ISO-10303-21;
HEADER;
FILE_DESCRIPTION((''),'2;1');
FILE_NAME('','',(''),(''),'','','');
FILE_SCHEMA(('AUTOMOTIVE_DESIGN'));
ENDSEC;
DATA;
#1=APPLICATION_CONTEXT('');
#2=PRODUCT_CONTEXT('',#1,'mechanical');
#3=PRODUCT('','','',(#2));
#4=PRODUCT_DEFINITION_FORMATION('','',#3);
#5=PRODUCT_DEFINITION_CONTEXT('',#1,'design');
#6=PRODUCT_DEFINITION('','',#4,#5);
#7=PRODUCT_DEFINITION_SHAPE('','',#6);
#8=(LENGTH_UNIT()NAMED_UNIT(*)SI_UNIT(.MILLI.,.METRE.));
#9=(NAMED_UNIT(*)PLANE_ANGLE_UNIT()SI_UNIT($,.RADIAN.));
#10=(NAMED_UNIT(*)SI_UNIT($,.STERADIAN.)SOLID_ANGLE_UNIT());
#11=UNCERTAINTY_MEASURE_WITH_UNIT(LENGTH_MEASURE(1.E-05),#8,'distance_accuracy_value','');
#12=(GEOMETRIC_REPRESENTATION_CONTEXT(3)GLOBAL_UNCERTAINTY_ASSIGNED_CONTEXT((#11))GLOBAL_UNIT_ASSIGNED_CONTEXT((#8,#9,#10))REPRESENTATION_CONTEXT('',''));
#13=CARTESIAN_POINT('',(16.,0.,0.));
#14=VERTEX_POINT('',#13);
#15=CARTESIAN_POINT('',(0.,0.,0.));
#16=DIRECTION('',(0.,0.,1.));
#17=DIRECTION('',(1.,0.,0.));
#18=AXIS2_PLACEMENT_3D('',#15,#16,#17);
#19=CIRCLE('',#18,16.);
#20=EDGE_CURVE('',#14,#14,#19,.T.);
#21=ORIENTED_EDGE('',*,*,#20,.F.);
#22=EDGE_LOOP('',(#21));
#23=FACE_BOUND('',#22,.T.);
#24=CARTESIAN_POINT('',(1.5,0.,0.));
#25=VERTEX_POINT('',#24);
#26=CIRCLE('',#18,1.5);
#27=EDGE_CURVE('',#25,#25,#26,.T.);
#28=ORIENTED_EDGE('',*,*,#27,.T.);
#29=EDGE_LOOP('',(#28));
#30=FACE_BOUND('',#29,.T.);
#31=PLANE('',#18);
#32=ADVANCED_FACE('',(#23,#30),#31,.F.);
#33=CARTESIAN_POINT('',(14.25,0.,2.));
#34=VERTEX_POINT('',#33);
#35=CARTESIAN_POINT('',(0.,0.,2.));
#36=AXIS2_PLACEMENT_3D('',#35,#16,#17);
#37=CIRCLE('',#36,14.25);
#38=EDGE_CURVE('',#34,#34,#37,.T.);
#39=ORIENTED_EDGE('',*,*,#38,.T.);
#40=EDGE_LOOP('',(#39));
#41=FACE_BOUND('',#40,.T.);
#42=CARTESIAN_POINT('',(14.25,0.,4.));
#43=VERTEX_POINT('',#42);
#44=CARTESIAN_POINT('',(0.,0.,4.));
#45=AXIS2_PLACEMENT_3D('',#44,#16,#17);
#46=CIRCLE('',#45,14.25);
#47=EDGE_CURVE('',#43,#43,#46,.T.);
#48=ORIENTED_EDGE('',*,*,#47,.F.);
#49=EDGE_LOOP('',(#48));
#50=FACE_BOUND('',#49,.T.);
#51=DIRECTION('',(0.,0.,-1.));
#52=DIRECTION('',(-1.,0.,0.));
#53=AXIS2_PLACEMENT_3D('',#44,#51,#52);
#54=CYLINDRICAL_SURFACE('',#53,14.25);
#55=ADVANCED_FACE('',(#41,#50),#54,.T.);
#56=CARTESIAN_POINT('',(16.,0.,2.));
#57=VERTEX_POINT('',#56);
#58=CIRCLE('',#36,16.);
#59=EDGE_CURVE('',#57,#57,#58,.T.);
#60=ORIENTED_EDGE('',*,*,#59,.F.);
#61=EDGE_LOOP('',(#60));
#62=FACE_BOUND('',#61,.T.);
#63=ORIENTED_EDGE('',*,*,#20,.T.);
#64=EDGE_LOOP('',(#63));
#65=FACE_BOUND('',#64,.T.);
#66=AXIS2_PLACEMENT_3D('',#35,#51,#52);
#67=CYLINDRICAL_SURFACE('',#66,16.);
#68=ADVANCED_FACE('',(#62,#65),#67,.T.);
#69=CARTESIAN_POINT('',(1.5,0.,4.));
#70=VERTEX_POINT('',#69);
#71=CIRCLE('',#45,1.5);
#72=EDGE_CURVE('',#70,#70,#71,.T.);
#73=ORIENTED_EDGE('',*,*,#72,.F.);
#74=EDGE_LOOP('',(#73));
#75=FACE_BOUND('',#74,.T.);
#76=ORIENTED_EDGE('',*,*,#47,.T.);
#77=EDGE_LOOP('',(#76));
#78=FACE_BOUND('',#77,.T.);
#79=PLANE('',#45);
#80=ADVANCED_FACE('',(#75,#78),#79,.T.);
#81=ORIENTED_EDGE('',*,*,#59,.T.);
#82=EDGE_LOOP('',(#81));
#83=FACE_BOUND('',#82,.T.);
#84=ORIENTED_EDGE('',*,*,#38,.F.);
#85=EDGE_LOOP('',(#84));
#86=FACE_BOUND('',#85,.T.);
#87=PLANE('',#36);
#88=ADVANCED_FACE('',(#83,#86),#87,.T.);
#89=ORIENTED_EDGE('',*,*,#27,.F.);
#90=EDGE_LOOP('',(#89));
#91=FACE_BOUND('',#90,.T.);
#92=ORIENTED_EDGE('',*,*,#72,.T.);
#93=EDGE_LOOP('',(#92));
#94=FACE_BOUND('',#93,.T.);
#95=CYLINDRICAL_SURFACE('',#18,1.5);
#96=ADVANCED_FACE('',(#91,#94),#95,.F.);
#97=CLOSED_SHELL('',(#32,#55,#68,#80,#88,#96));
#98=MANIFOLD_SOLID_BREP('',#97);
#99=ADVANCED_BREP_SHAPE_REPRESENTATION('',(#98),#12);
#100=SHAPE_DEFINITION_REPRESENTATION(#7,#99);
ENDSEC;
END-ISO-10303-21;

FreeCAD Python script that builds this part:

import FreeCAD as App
import Part
import Sketcher

doc = App.newDocument("Part")
params = doc.addObject("Spreadsheet::Sheet", "Params")
for row, (alias, value) in enumerate([
    ("sketch1_diameter", "32 mm"),
    ("pad1_length", "2 mm"),
    ("sketch2_diameter", "28.5 mm"),
    ("pad2_length", "2 mm"),
    ("sketch3_diameter", "3 mm"),
], start=1):
    params.set(f"A{row}", alias)
    params.set(f"B{row}", "=" + value)
    params.setAlias(f"B{row}", alias)

body = doc.addObject("PartDesign::Body", "Body")

sketch1 = doc.addObject("Sketcher::SketchObject", "Sketch")
body.addObject(sketch1)
sketch1.AttachmentSupport = (doc.XY_Plane, [""])
sketch1.MapMode = "FlatFace"
sketch1.addGeometry(Part.Circle(App.Vector(0, 0, 0), App.Vector(0, 0, 1), 16), False)
sketch1.addConstraint(Sketcher.Constraint("Coincident", 0, 3, -1, 1))
sketch1.addConstraint(Sketcher.Constraint("Diameter", 0, 32.0))
sketch1.setExpression("Constraints[1]", "Params.sketch1_diameter")
pad1 = doc.addObject("PartDesign::Pad", "Pad")
body.addObject(pad1)
pad1.Profile = sketch1
pad1.setExpression("Length", "Params.pad1_length")

sketch2 = doc.addObject("Sketcher::SketchObject", "Sketch001")
body.addObject(sketch2)
sketch2.AttachmentSupport = (doc.XY_Plane, [""])
sketch2.MapMode = "FlatFace"
sketch2.AttachmentOffset = App.Placement(App.Vector(0, 0, 2), App.Rotation())
sketch2.addGeometry(Part.Circle(App.Vector(0, 0, 0), App.Vector(0, 0, 1), 14), False)
sketch2.addConstraint(Sketcher.Constraint("Coincident", 0, 3, -1, 1))
sketch2.addConstraint(Sketcher.Constraint("Diameter", 0, 28.5))
sketch2.setExpression("Constraints[1]", "Params.sketch2_diameter")
pad2 = doc.addObject("PartDesign::Pad", "Pad001")
body.addObject(pad2)
pad2.Profile = sketch2
pad2.setExpression("Length", "Params.pad2_length")

sketch3 = doc.addObject("Sketcher::SketchObject", "Sketch002")
body.addObject(sketch3)
sketch3.AttachmentSupport = (doc.XY_Plane, [""])
sketch3.MapMode = "FlatFace"
sketch3.AttachmentOffset = App.Placement(App.Vector(0, 0, 4), App.Rotation())
sketch3.addGeometry(Part.Circle(App.Vector(0, 0, 0), App.Vector(0, 0, 1), 1.5), False)
sketch3.addConstraint(Sketcher.Constraint("Coincident", 0, 3, -1, 1))
sketch3.addConstraint(Sketcher.Constraint("Diameter", 0, 3.0))
sketch3.setExpression("Constraints[1]", "Params.sketch3_diameter")
pocket1 = doc.addObject("PartDesign::Pocket", "Pocket")
body.addObject(pocket1)
pocket1.Profile = sketch3
pocket1.Type = "ThroughAll"

doc.recompute()
